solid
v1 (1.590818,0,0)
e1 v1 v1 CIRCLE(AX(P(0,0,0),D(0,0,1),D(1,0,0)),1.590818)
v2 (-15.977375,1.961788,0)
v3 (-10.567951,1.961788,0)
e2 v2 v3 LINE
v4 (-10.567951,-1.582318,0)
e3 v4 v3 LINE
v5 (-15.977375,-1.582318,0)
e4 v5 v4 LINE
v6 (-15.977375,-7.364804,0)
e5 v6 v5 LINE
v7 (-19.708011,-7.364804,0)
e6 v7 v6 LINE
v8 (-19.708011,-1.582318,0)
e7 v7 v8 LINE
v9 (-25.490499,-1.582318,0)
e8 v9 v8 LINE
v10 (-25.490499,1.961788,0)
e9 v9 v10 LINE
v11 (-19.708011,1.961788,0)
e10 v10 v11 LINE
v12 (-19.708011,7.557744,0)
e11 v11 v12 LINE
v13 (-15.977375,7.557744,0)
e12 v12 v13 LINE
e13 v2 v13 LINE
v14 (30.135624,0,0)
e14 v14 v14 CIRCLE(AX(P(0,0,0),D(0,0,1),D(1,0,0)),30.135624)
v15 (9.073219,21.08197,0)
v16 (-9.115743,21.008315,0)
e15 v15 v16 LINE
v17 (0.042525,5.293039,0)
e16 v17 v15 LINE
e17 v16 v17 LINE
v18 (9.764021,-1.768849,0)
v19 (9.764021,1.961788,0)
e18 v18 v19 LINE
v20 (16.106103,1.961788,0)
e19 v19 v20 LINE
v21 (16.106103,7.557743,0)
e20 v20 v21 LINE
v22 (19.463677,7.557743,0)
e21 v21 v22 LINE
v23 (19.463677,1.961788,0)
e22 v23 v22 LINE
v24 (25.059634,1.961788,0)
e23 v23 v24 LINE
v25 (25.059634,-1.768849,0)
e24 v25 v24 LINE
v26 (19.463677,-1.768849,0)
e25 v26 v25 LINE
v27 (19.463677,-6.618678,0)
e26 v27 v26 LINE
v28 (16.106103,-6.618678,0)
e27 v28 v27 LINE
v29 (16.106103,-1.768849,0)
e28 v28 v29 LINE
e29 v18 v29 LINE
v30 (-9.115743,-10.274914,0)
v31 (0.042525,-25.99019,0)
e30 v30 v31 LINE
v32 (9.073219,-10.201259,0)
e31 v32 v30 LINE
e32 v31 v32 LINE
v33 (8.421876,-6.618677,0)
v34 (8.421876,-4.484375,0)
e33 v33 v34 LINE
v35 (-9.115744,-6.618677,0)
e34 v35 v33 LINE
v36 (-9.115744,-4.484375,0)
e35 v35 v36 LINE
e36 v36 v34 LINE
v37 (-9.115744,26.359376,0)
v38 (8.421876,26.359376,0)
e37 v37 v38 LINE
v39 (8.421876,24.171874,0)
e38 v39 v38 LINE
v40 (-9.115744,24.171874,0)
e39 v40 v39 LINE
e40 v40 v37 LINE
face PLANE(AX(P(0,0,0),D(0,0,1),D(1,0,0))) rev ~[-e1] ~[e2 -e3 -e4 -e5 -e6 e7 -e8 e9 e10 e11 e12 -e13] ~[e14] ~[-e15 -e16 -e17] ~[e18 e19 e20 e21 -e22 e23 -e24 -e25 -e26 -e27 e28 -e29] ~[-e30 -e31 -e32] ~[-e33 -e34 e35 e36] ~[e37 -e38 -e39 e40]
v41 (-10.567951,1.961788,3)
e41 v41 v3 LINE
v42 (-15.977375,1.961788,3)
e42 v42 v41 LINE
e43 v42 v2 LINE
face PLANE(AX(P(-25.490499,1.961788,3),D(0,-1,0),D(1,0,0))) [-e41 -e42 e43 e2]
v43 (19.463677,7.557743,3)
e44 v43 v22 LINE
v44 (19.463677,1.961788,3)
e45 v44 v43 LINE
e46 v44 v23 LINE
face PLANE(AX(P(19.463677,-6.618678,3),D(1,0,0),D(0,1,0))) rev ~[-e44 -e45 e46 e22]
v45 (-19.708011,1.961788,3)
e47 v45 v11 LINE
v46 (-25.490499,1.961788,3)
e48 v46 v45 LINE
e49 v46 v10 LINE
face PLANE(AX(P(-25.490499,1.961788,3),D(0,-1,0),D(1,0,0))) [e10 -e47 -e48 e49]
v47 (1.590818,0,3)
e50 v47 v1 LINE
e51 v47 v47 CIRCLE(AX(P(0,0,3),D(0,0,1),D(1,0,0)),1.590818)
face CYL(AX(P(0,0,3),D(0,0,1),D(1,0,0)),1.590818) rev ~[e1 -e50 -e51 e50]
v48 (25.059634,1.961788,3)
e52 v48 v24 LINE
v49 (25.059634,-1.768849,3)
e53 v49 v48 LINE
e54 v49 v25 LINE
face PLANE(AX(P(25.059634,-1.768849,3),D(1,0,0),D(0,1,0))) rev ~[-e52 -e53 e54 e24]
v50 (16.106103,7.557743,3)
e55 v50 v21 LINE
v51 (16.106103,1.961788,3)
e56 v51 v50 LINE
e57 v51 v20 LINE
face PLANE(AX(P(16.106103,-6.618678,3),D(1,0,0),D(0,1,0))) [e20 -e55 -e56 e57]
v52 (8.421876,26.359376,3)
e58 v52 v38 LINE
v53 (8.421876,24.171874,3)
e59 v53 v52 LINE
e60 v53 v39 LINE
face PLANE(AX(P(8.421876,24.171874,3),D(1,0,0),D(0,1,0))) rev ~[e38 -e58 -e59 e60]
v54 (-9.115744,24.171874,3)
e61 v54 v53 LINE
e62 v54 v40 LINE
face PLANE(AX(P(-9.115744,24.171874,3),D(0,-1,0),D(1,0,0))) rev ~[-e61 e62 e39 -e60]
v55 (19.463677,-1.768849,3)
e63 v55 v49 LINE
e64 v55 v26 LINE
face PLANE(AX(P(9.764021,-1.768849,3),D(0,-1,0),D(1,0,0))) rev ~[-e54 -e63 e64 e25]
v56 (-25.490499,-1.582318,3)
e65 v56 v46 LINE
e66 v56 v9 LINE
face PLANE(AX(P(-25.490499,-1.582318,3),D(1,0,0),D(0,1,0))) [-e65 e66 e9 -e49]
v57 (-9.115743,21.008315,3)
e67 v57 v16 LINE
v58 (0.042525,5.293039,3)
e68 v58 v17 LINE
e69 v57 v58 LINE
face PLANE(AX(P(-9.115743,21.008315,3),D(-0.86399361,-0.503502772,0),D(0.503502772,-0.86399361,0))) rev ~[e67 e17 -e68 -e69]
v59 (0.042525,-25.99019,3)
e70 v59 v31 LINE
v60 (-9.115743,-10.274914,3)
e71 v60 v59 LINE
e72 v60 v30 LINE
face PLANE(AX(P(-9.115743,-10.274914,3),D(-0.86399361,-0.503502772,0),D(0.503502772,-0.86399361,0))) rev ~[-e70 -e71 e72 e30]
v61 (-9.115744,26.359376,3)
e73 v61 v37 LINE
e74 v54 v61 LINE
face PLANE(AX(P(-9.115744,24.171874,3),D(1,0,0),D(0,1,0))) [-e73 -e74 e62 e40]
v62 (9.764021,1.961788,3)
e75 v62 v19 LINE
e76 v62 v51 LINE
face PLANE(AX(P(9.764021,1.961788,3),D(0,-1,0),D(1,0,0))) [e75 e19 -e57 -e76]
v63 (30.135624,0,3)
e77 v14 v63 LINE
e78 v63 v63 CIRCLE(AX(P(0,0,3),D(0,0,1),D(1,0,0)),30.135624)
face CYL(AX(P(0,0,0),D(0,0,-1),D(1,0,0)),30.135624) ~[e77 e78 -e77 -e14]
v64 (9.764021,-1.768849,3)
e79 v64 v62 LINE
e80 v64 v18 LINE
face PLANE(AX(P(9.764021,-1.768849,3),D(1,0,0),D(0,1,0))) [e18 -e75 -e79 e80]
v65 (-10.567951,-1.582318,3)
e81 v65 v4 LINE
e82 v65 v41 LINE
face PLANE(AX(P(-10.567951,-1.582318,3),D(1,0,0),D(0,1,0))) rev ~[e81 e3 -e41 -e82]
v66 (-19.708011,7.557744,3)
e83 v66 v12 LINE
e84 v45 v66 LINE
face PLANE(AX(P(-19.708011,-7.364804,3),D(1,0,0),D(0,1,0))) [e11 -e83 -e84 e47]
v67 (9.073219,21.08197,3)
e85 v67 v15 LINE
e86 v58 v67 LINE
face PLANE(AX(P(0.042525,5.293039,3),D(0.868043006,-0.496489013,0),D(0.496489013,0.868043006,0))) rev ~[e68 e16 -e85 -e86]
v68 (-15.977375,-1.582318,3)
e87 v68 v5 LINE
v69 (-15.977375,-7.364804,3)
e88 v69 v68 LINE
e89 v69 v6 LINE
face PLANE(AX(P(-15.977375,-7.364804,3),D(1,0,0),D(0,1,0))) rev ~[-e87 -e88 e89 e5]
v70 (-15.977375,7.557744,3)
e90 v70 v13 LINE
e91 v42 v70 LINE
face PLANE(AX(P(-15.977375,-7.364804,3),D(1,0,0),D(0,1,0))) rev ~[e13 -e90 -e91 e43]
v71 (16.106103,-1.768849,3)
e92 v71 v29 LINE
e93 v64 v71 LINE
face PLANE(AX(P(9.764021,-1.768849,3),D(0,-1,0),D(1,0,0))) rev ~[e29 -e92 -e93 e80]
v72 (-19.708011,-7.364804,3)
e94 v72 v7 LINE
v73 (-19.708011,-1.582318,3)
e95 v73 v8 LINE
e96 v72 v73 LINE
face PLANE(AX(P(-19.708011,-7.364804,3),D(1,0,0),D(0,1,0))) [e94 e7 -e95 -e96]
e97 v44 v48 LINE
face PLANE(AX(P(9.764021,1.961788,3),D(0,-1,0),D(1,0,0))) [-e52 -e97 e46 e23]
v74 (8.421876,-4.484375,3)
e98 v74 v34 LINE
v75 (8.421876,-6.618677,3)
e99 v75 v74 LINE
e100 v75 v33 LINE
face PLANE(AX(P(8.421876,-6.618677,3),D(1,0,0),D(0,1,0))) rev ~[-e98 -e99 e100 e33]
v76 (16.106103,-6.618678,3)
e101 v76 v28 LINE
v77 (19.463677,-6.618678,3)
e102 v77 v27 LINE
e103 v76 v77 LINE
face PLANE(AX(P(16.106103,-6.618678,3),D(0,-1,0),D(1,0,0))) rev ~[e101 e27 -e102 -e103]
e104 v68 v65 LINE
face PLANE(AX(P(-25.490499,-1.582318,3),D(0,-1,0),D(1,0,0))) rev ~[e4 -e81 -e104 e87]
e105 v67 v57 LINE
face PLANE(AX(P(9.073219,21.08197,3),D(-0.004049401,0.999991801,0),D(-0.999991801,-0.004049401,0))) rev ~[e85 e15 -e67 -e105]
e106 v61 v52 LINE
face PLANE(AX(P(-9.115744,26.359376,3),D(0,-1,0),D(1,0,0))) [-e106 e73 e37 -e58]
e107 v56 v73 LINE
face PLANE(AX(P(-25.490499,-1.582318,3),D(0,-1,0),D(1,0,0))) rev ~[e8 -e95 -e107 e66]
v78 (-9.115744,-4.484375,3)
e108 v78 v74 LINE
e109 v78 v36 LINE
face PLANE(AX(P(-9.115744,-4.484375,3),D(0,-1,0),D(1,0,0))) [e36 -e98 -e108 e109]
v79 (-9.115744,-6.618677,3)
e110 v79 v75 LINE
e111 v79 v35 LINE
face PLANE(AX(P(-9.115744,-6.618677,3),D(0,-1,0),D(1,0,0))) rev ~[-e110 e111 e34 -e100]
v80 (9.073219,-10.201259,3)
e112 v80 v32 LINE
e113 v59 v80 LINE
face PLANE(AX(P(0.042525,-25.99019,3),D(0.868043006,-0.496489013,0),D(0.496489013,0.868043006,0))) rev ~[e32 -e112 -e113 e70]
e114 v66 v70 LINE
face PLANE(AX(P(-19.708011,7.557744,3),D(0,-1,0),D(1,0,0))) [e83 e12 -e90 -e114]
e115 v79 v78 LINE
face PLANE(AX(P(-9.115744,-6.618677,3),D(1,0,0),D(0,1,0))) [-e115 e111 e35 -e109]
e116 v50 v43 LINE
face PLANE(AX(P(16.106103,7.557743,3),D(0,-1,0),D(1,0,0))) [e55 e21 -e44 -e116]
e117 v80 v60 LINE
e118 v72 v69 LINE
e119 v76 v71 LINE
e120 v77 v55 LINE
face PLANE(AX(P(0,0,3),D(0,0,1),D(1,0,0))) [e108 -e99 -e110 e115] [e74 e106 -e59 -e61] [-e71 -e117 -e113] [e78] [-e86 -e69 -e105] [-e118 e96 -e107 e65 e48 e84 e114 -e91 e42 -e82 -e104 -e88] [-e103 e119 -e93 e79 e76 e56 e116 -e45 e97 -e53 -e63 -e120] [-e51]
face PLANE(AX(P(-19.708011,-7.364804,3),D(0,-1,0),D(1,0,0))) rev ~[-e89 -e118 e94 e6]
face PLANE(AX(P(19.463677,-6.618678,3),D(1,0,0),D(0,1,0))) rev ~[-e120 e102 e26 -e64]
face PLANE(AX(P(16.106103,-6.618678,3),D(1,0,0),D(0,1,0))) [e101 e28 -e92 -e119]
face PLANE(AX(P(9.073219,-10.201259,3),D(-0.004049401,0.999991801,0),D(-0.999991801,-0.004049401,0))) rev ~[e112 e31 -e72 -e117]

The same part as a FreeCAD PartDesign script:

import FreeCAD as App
import Part
import Sketcher

V = App.Vector
Q = App.Units.Quantity

doc = App.newDocument("Part")
body = doc.addObject("PartDesign::Body", "Body")

# Sketch on XY plane
sketch1 = body.newObject("Sketcher::SketchObject", "Sketch")
sketch1.AttachmentSupport = (doc.getObject("XY_Plane"), [""])
sketch1.MapMode = "FlatFace"
sketch1.addGeometry(Part.Circle(V(0, 0, 0), V(0, 0, 1), 30), False)
sketch1.addConstraint([
    Sketcher.Constraint("Coincident", 0, 3, -1, 1),
    Sketcher.Constraint("Diameter", 0, Q("60.271248 mm")),
])
pad1 = body.newObject("PartDesign::Pad", "Pad")
pad1.Profile = sketch1
pad1.Length = 3

# Sketch on XY plane
sketch2 = body.newObject("Sketcher::SketchObject", "Sketch001")
sketch2.AttachmentSupport = (doc.getObject("XY_Plane"), [""])
sketch2.MapMode = "FlatFace"
sketch2.AttachmentOffset = App.Placement(V(0, 0, 3), App.Rotation())
sketch2.addGeometry(Part.Circle(V(0, 0, 0), V(0, 0, 1), 1.6), False)
sketch2.addConstraint([
    Sketcher.Constraint("Coincident", 0, 3, -1, 1),
    Sketcher.Constraint("Diameter", 0, Q("3.181636 mm")),
])
pocket1 = body.newObject("PartDesign::Pocket", "Pocket")
pocket1.Profile = sketch2
pocket1.Length = 25

# Sketch on XY plane
sketch3 = body.newObject("Sketcher::SketchObject", "Sketch002")
sketch3.AttachmentSupport = (doc.getObject("XY_Plane"), [""])
sketch3.MapMode = "FlatFace"
sketch3.AttachmentOffset = App.Placement(V(0, 0, 3), App.Rotation())
sketch3.addGeometry([
    Part.LineSegment(V(0, 5, 0), V(9, 21, 0)),  # 0
    Part.LineSegment(V(9, 21, 0), V(-9, 21, 0)),  # 1
    Part.LineSegment(V(-9, 21, 0), V(0, 5, 0)),  # 2
    Part.LineSegment(V(0, -26, 0), V(9, -10, 0)),  # 3
    Part.LineSegment(V(9, -10, 0), V(-9, -10, 0)),  # 4
    Part.LineSegment(V(-9, -10, 0), V(0, -26, 0)),  # 5
], False)
sketch3.addConstraint([
    Sketcher.Constraint("Coincident", 0, 2, 1, 1),
    Sketcher.Constraint("Coincident", 1, 2, 2, 1),
    Sketcher.Constraint("Coincident", 2, 2, 0, 1),
    Sketcher.Constraint("Coincident", 3, 2, 4, 1),
    Sketcher.Constraint("Coincident", 4, 2, 5, 1),
    Sketcher.Constraint("Coincident", 5, 2, 3, 1),
    Sketcher.Constraint("Parallel", 0, 3),
    Sketcher.Constraint("Parallel", 1, 4),
    Sketcher.Constraint("Parallel", 2, 5),
    Sketcher.Constraint("Vertical", 0, 2, 3, 2),
    Sketcher.Constraint("Vertical", 1, 2, 4, 2),
    Sketcher.Constraint("Equal", 0, 1),
    Sketcher.Constraint("Equal", 1, 2),
    Sketcher.Constraint("Distance", 0, Q("18.189111 mm")),
    Sketcher.Constraint("DistanceX", -1, 1, 0, 2, Q("9.073219 mm")),
    Sketcher.Constraint("DistanceY", -1, 1, 0, 2, Q("21.08197 mm")),
    Sketcher.Constraint("DistanceY", -1, 1, 2, 2, Q("5.293039 mm")),
    Sketcher.Constraint("DistanceY", 3, 2, -1, 1, Q("10.201259 mm")),
])
pocket2 = body.newObject("PartDesign::Pocket", "Pocket001")
pocket2.Profile = sketch3
pocket2.Length = 25

# Sketch on XY plane
sketch4 = body.newObject("Sketcher::SketchObject", "Sketch003")
sketch4.AttachmentSupport = (doc.getObject("XY_Plane"), [""])
sketch4.MapMode = "FlatFace"
sketch4.AttachmentOffset = App.Placement(V(0, 0, 3), App.Rotation())
sketch4.addGeometry([
    Part.LineSegment(V(-19.7, 7.6, 0), V(-19.7, -7.4, 0)),
    Part.LineSegment(V(-19.7, -7.4, 0), V(-16, -7.4, 0)),
    Part.LineSegment(V(-16, -7.4, 0), V(-16, 7.6, 0)),
    Part.LineSegment(V(-16, 7.6, 0), V(-19.7, 7.6, 0)),
], False)
sketch4.addConstraint([
    Sketcher.Constraint("Coincident", 0, 2, 1, 1),
    Sketcher.Constraint("Coincident", 1, 2, 2, 1),
    Sketcher.Constraint("Coincident", 2, 2, 3, 1),
    Sketcher.Constraint("Coincident", 3, 2, 0, 1),
    Sketcher.Constraint("Vertical", 0),
    Sketcher.Constraint("Horizontal", 1),
    Sketcher.Constraint("Vertical", 2),
    Sketcher.Constraint("Horizontal", 3),
    Sketcher.Constraint("DistanceX", 1, 1, 1, 2, Q("3.730636 mm")),
    Sketcher.Constraint("DistanceY", 0, 2, 0, 1, Q("14.922548 mm")),
    Sketcher.Constraint("DistanceX", 0, 2, -1, 1, Q("19.708011 mm")),
    Sketcher.Constraint("DistanceY", 0, 2, -1, 1, Q("7.364804 mm")),
])
pocket3 = body.newObject("PartDesign::Pocket", "Pocket002")
pocket3.Profile = sketch4
pocket3.Length = 25

# Sketch on XY plane
sketch5 = body.newObject("Sketcher::SketchObject", "Sketch004")
sketch5.AttachmentSupport = (doc.getObject("XY_Plane"), [""])
sketch5.MapMode = "FlatFace"
sketch5.AttachmentOffset = App.Placement(V(0, 0, 3), App.Rotation())
sketch5.addGeometry([
    Part.LineSegment(V(-25.5, 2, 0), V(-25.5, -1.6, 0)),
    Part.LineSegment(V(-25.5, -1.6, 0), V(-10.6, -1.6, 0)),
    Part.LineSegment(V(-10.6, -1.6, 0), V(-10.6, 2, 0)),
    Part.LineSegment(V(-10.6, 2, 0), V(-25.5, 2, 0)),
], False)
sketch5.addConstraint([
    Sketcher.Constraint("Coincident", 0, 2, 1, 1),
    Sketcher.Constraint("Coincident", 1, 2, 2, 1),
    Sketcher.Constraint("Coincident", 2, 2, 3, 1),
    Sketcher.Constraint("Coincident", 3, 2, 0, 1),
    Sketcher.Constraint("Vertical", 0),
    Sketcher.Constraint("Horizontal", 1),
    Sketcher.Constraint("Vertical", 2),
    Sketcher.Constraint("Horizontal", 3),
    Sketcher.Constraint("DistanceX", 1, 1, 1, 2, Q("14.922549 mm")),
    Sketcher.Constraint("DistanceX", 0, 2, -1, 1, Q("25.490499 mm")),
    Sketcher.Constraint("DistanceY", 0, 2, 0, 1, Q("3.544105 mm")),
    Sketcher.Constraint("DistanceY", 0, 2, -1, 1, Q("1.582318 mm")),
])
pocket4 = body.newObject("PartDesign::Pocket", "Pocket003")
pocket4.Profile = sketch5
pocket4.Length = 25

# Sketch on XY plane
sketch6 = body.newObject("Sketcher::SketchObject", "Sketch005")
sketch6.AttachmentSupport = (doc.getObject("XY_Plane"), [""])
sketch6.MapMode = "FlatFace"
sketch6.AttachmentOffset = App.Placement(V(0, 0, 3), App.Rotation())
sketch6.addGeometry([
    Part.LineSegment(V(16.1, 7.6, 0), V(16.1, -6.6, 0)),
    Part.LineSegment(V(16.1, -6.6, 0), V(19.5, -6.6, 0)),
    Part.LineSegment(V(19.5, -6.6, 0), V(19.5, 7.6, 0)),
    Part.LineSegment(V(19.5, 7.6, 0), V(16.1, 7.6, 0)),
], False)
sketch6.addConstraint([
    Sketcher.Constraint("Coincident", 0, 2, 1, 1),
    Sketcher.Constraint("Coincident", 1, 2, 2, 1),
    Sketcher.Constraint("Coincident", 2, 2, 3, 1),
    Sketcher.Constraint("Coincident", 3, 2, 0, 1),
    Sketcher.Constraint("Vertical", 0),
    Sketcher.Constraint("Horizontal", 1),
    Sketcher.Constraint("Vertical", 2),
    Sketcher.Constraint("Horizontal", 3),
    Sketcher.Constraint("DistanceY", 0, 2, 0, 1, Q("14.176421 mm")),
    Sketcher.Constraint("DistanceX", 1, 1, 1, 2, Q("3.357574 mm")),
    Sketcher.Constraint("DistanceX", -1, 1, 0, 2, Q("16.106103 mm")),
    Sketcher.Constraint("DistanceY", 0, 2, -1, 1, Q("6.618678 mm")),
])
pocket5 = body.newObject("PartDesign::Pocket", "Pocket004")
pocket5.Profile = sketch6
pocket5.Length = 25

# Sketch on XY plane
sketch7 = body.newObject("Sketcher::SketchObject", "Sketch006")
sketch7.AttachmentSupport = (doc.getObject("XY_Plane"), [""])
sketch7.MapMode = "FlatFace"
sketch7.AttachmentOffset = App.Placement(V(0, 0, 3), App.Rotation())
sketch7.addGeometry([
    Part.LineSegment(V(9.8, 2, 0), V(9.8, -1.8, 0)),
    Part.LineSegment(V(9.8, -1.8, 0), V(25.1, -1.8, 0)),
    Part.LineSegment(V(25.1, -1.8, 0), V(25.1, 2, 0)),
    Part.LineSegment(V(25.1, 2, 0), V(9.8, 2, 0)),
], False)
sketch7.addConstraint([
    Sketcher.Constraint("Coincident", 0, 2, 1, 1),
    Sketcher.Constraint("Coincident", 1, 2, 2, 1),
    Sketcher.Constraint("Coincident", 2, 2, 3, 1),
    Sketcher.Constraint("Coincident", 3, 2, 0, 1),
    Sketcher.Constraint("Vertical", 0),
    Sketcher.Constraint("Horizontal", 1),
    Sketcher.Constraint("Vertical", 2),
    Sketcher.Constraint("Horizontal", 3),
    Sketcher.Constraint("DistanceX", 1, 1, 1, 2, Q("15.295613 mm")),
    Sketcher.Constraint("DistanceY", 0, 2, 0, 1, Q("3.730637 mm")),
    Sketcher.Constraint("DistanceX", -1, 1, 0, 2, Q("9.764021 mm")),
    Sketcher.Constraint("DistanceY", 0, 2, -1, 1, Q("1.768849 mm")),
])
pocket6 = body.newObject("PartDesign::Pocket", "Pocket005")
pocket6.Profile = sketch7
pocket6.Length = 25

# Sketch on XY plane
sketch8 = body.newObject("Sketcher::SketchObject", "Sketch007")
sketch8.AttachmentSupport = (doc.getObject("XY_Plane"), [""])
sketch8.MapMode = "FlatFace"
sketch8.AttachmentOffset = App.Placement(V(0, 0, 3), App.Rotation())
sketch8.addGeometry([
    Part.LineSegment(V(-9.1, 26.4, 0), V(-9.1, 24.2, 0)),  # 0
    Part.LineSegment(V(-9.1, 24.2, 0), V(8.4, 24.2, 0)),  # 1
    Part.LineSegment(V(8.4, 24.2, 0), V(8.4, 26.4, 0)),  # 2
    Part.LineSegment(V(8.4, 26.4, 0), V(-9.1, 26.4, 0)),  # 3
    Part.LineSegment(V(-9.1, -4.5, 0), V(-9.1, -6.6, 0)),  # 4
    Part.LineSegment(V(-9.1, -6.6, 0), V(8.4, -6.6, 0)),  # 5
    Part.LineSegment(V(8.4, -6.6, 0), V(8.4, -4.5, 0)),  # 6
    Part.LineSegment(V(8.4, -4.5, 0), V(-9.1, -4.5, 0)),  # 7
], False)
sketch8.addConstraint([
    Sketcher.Constraint("Coincident", 0, 2, 1, 1),
    Sketcher.Constraint("Coincident", 1, 2, 2, 1),
    Sketcher.Constraint("Coincident", 2, 2, 3, 1),
    Sketcher.Constraint("Coincident", 3, 2, 0, 1),
    Sketcher.Constraint("Coincident", 4, 2, 5, 1),
    Sketcher.Constraint("Coincident", 5, 2, 6, 1),
    Sketcher.Constraint("Coincident", 6, 2, 7, 1),
    Sketcher.Constraint("Coincident", 7, 2, 4, 1),
    Sketcher.Constraint("Vertical", 0),
    Sketcher.Constraint("Horizontal", 1),
    Sketcher.Constraint("Vertical", 2),
    Sketcher.Constraint("Horizontal", 3),
    Sketcher.Constraint("Vertical", 4),
    Sketcher.Constraint("Horizontal", 5),
    Sketcher.Constraint("Vertical", 6),
    Sketcher.Constraint("Horizontal", 7),
    Sketcher.Constraint("Vertical", 3, 2, 4, 2),
    Sketcher.Constraint("Vertical", 2, 2, 5, 2),
    Sketcher.Constraint("DistanceY", 4, 2, 4, 1, Q("2.134302 mm")),
    Sketcher.Constraint("DistanceX", 1, 1, 1, 2, Q("17.537619 mm")),
    Sketcher.Constraint("DistanceY", 0, 2, 0, 1, Q("2.187502 mm")),
    Sketcher.Constraint("DistanceY", 4, 2, 0, 2, Q("30.790551 mm")),
    Sketcher.Constraint("DistanceX", 0, 2, -1, 1, Q("9.115744 mm")),
    Sketcher.Constraint("DistanceY", -1, 1, 0, 2, Q("24.171874 mm")),
])
pocket7 = body.newObject("PartDesign::Pocket", "Pocket006")
pocket7.Profile = sketch8
pocket7.Length = 25

doc.recompute()
